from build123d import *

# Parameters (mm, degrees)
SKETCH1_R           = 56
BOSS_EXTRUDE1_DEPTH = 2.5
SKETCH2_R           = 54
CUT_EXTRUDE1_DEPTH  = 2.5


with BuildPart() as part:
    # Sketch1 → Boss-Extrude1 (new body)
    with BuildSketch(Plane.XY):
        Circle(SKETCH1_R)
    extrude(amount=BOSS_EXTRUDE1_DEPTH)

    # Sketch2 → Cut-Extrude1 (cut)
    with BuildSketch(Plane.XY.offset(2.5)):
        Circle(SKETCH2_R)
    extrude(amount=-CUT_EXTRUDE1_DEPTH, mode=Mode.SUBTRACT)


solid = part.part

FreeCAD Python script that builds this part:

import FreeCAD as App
import Part
import Sketcher

V = App.Vector

doc = App.newDocument("Part")
body = doc.addObject("PartDesign::Body", "Body")

# Sketch on XY plane
sketch1 = body.newObject("Sketcher::SketchObject", "Sketch")
sketch1.AttachmentSupport = (doc.getObject("XY_Plane"), [""])
sketch1.MapMode = "FlatFace"
sketch1.addGeometry(Part.Circle(V(0, 0, 0), V(0, 0, 1), 56), False)
sketch1.addConstraint([
    Sketcher.Constraint("Coincident", 0, 3, -1, 1),
    Sketcher.Constraint("Diameter", 0, 112.0),
])
pad1 = body.newObject("PartDesign::Pad", "Pad")
pad1.Profile = sketch1
pad1.Length = 2.5

# Sketch on XY plane
sketch2 = body.newObject("Sketcher::SketchObject", "Sketch001")
sketch2.AttachmentSupport = (doc.getObject("XY_Plane"), [""])
sketch2.MapMode = "FlatFace"
sketch2.AttachmentOffset = App.Placement(V(0, 0, 2.5), App.Rotation())
sketch2.addGeometry(Part.Circle(V(0, 0, 0), V(0, 0, 1), 54), False)
sketch2.addConstraint([
    Sketcher.Constraint("Coincident", 0, 3, -1, 1),
    Sketcher.Constraint("Diameter", 0, 108.0),
])
pocket1 = body.newObject("PartDesign::Pocket", "Pocket")
pocket1.Profile = sketch2
pocket1.Length = 2.5

doc.recompute()
